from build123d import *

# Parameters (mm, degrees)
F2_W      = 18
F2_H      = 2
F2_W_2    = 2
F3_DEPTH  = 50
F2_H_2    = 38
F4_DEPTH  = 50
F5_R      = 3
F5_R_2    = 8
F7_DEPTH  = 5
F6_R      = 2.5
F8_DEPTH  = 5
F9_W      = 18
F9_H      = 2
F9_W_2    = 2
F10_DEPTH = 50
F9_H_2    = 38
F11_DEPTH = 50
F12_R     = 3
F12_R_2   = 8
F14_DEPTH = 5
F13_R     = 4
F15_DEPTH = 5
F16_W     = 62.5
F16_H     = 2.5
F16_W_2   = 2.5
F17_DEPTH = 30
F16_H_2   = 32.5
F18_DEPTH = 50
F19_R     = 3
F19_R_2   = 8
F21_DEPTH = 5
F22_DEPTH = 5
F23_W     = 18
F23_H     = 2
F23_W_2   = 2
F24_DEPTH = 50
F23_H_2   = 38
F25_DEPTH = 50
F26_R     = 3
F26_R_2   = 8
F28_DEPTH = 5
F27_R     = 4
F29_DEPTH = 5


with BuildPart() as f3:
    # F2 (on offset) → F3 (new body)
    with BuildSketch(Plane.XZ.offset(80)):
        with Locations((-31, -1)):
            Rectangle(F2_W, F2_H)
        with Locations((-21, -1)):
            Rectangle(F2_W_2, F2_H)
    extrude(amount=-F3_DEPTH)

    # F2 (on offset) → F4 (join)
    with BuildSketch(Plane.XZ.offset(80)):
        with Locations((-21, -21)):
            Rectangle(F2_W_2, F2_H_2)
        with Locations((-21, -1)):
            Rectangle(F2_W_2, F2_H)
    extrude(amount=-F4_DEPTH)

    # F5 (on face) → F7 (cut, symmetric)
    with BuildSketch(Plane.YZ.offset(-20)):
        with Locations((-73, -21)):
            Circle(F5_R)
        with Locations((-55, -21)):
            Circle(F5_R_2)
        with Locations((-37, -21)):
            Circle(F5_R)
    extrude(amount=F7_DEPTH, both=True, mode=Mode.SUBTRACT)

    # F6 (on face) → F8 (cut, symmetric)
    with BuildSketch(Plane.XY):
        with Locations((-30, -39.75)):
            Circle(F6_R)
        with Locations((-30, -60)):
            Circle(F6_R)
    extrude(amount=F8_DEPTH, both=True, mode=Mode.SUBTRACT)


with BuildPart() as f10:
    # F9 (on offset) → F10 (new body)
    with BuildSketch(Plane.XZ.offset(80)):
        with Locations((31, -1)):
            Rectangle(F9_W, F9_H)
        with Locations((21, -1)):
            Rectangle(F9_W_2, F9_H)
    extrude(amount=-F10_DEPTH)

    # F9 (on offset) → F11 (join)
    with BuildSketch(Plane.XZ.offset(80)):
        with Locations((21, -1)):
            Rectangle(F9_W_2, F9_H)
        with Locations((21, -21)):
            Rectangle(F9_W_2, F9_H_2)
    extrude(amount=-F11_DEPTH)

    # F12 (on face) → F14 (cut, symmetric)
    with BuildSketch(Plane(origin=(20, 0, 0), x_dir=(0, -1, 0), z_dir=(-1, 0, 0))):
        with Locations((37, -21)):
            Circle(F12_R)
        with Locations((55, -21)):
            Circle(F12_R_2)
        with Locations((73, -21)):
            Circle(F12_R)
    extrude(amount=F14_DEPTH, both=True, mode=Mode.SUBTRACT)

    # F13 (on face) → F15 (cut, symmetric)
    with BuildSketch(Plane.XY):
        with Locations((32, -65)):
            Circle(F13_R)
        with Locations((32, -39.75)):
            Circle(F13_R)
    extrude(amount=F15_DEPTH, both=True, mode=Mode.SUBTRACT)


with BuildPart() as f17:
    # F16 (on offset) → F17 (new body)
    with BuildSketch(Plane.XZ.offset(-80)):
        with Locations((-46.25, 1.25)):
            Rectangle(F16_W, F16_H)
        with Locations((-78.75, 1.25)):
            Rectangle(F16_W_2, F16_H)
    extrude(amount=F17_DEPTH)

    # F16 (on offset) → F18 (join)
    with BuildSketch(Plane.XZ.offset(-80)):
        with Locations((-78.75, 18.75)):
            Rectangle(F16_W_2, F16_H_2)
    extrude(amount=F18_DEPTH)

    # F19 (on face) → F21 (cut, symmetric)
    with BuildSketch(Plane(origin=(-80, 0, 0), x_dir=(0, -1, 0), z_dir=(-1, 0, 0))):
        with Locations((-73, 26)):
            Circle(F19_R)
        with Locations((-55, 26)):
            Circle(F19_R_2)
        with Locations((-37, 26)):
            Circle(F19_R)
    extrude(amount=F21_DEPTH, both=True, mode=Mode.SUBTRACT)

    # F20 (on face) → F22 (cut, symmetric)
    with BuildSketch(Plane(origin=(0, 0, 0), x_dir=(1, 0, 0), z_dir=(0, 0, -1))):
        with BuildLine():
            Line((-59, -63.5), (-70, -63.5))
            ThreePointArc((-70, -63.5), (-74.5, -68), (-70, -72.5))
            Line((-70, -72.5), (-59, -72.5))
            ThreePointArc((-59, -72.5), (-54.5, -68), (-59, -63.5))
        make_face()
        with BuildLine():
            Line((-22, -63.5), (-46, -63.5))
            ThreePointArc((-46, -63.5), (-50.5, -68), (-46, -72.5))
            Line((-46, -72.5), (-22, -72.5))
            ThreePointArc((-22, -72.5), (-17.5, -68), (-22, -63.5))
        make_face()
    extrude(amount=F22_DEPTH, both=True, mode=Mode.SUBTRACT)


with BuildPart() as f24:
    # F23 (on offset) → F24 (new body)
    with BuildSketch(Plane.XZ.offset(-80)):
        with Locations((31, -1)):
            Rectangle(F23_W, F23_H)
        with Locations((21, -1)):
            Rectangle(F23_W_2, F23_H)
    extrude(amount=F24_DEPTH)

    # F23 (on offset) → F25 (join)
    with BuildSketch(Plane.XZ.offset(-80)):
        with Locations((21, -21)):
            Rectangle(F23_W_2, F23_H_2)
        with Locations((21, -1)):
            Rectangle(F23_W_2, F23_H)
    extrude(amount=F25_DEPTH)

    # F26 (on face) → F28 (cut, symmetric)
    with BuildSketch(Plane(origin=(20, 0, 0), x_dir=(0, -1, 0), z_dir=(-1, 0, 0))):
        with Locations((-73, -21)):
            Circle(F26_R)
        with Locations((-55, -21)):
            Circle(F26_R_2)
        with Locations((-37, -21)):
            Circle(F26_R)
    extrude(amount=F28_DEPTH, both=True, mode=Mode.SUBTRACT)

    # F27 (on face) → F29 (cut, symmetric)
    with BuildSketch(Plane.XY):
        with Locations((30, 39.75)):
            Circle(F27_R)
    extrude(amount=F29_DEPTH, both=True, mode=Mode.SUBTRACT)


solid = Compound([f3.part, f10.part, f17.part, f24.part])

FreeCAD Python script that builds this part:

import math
import FreeCAD as App
import Part
import Sketcher
from FreeCAD import Vector

doc = App.newDocument("Part")
body = doc.addObject("PartDesign::Body", "Body")

# Sketch on XZ plane
sketch1 = doc.addObject("Sketcher::SketchObject", "Sketch")
body.addObject(sketch1)
sketch1.AttachmentSupport = (doc.XZ_Plane, [""])
sketch1.MapMode = "FlatFace"
sketch1.AttachmentOffset = App.Placement(Vector(0, 0, 80), App.Rotation())
sketch1.addGeometry([
    Part.LineSegment(Vector(-40, 0, 0), Vector(-40, -2, 0)),
    Part.LineSegment(Vector(-40, -2, 0), Vector(-20, -2, 0)),
    Part.LineSegment(Vector(-20, -2, 0), Vector(-20, 0, 0)),
    Part.LineSegment(Vector(-20, 0, 0), Vector(-40, 0, 0)),
], False)
sketch1.addConstraint([
    Sketcher.Constraint("Coincident", 0, 2, 1, 1),
    Sketcher.Constraint("Coincident", 1, 2, 2, 1),
    Sketcher.Constraint("Coincident", 2, 2, 3, 1),
    Sketcher.Constraint("Coincident", 3, 2, 0, 1),
    Sketcher.Constraint("Vertical", 0),
    Sketcher.Constraint("Horizontal", 1),
    Sketcher.Constraint("Vertical", 2),
    Sketcher.Constraint("Horizontal", 3),
    Sketcher.Constraint("PointOnObject", 2, 2, -1),
    Sketcher.Constraint("DistanceX", 1, 1, 1, 2, 20.0),
    Sketcher.Constraint("DistanceY", 0, 2, 0, 1, 2.0),
    Sketcher.Constraint("DistanceX", 0, 2, -1, 1, 40.0),
])
pad1 = doc.addObject("PartDesign::Pad", "Pad")
body.addObject(pad1)
pad1.Profile = sketch1
pad1.Length = 50
pad1.Reversed = True

# Sketch on XZ plane
sketch2 = doc.addObject("Sketcher::SketchObject", "Sketch001")
body.addObject(sketch2)
sketch2.AttachmentSupport = (doc.XZ_Plane, [""])
sketch2.MapMode = "FlatFace"
sketch2.AttachmentOffset = App.Placement(Vector(0, 0, 80), App.Rotation())
sketch2.addGeometry([
    Part.LineSegment(Vector(-22, -40, 0), Vector(-20, -40, 0)),
    Part.LineSegment(Vector(-20, -40, 0), Vector(-20, 0, 0)),
    Part.LineSegment(Vector(-20, 0, 0), Vector(-22, 0, 0)),
    Part.LineSegment(Vector(-22, 0, 0), Vector(-22, -40, 0)),
], False)
sketch2.addConstraint([
    Sketcher.Constraint("Coincident", 0, 2, 1, 1),
    Sketcher.Constraint("Coincident", 1, 2, 2, 1),
    Sketcher.Constraint("Coincident", 2, 2, 3, 1),
    Sketcher.Constraint("Coincident", 3, 2, 0, 1),
    Sketcher.Constraint("Horizontal", 0),
    Sketcher.Constraint("Vertical", 1),
    Sketcher.Constraint("Horizontal", 2),
    Sketcher.Constraint("Vertical", 3),
    Sketcher.Constraint("PointOnObject", 1, 2, -1),
    Sketcher.Constraint("DistanceX", 0, 1, 0, 2, 2.0),
    Sketcher.Constraint("DistanceY", 1, 1, 1, 2, 40.0),
    Sketcher.Constraint("DistanceX", 0, 2, -1, 1, 20.0),
])
pad2 = doc.addObject("PartDesign::Pad", "Pad001")
body.addObject(pad2)
pad2.Profile = sketch2
pad2.Length = 50
pad2.Reversed = True

# Sketch on YZ plane
sketch3 = doc.addObject("Sketcher::SketchObject", "Sketch002")
body.addObject(sketch3)
sketch3.AttachmentSupport = (doc.YZ_Plane, [""])
sketch3.MapMode = "FlatFace"
sketch3.AttachmentOffset = App.Placement(Vector(0, 0, -20), App.Rotation())
sketch3.addGeometry([
    Part.Circle(Vector(-73, -21, 0), Vector(0, 0, 1), 3),
    Part.Circle(Vector(-55, -21, 0), Vector(0, 0, 1), 8),
    Part.Circle(Vector(-37, -21, 0), Vector(0, 0, 1), 3),
], False)
sketch3.addConstraint([
    Sketcher.Constraint("Equal", 0, 2),
    Sketcher.Constraint("Horizontal", 0, 3, 1, 3),
    Sketcher.Constraint("Horizontal", 1, 3, 2, 3),
    Sketcher.Constraint("Diameter", 0, 6.0),
    Sketcher.Constraint("Diameter", 1, 16.0),
    Sketcher.Constraint("DistanceX", 0, 3, -1, 1, 73.0),
    Sketcher.Constraint("DistanceY", 0, 3, -1, 1, 21.0),
    Sketcher.Constraint("DistanceX", 1, 3, -1, 1, 55.0),
    Sketcher.Constraint("DistanceX", 2, 3, -1, 1, 37.0),
])
pocket1 = doc.addObject("PartDesign::Pocket", "Pocket")
body.addObject(pocket1)
pocket1.Profile = sketch3
pocket1.Length = 10
pocket1.Midplane = True

# Sketch on XY plane
sketch4 = doc.addObject("Sketcher::SketchObject", "Sketch003")
body.addObject(sketch4)
sketch4.AttachmentSupport = (doc.XY_Plane, [""])
sketch4.MapMode = "FlatFace"
sketch4.addGeometry([
    Part.Circle(Vector(-30, -39.8, 0), Vector(0, 0, 1), 2.5),
    Part.Circle(Vector(-30, -60, 0), Vector(0, 0, 1), 2.5),
], False)
sketch4.addConstraint([
    Sketcher.Constraint("Equal", 0, 1),
    Sketcher.Constraint("Vertical", 0, 3, 1, 3),
    Sketcher.Constraint("Diameter", 0, 5.0),
    Sketcher.Constraint("DistanceX", 0, 3, -1, 1, 30.0),
    Sketcher.Constraint("DistanceY", 1, 3, -1, 1, 60.0),
    Sketcher.Constraint("DistanceY", 0, 3, -1, 1, 39.75),
])
pocket2 = doc.addObject("PartDesign::Pocket", "Pocket001")
body.addObject(pocket2)
pocket2.Profile = sketch4
pocket2.Length = 10
pocket2.Midplane = True
body2 = doc.addObject("PartDesign::Body", "Body001")

# Sketch on XZ plane
sketch5 = doc.addObject("Sketcher::SketchObject", "Sketch004")
body2.addObject(sketch5)
sketch5.AttachmentSupport = (doc.getObject("XZ_Plane001"), [""])
sketch5.MapMode = "FlatFace"
sketch5.AttachmentOffset = App.Placement(Vector(0, 0, 80), App.Rotation())
sketch5.addGeometry([
    Part.LineSegment(Vector(40, -2, 0), Vector(40, 0, 0)),
    Part.LineSegment(Vector(40, 0, 0), Vector(20, 0, 0)),
    Part.LineSegment(Vector(20, 0, 0), Vector(20, -2, 0)),
    Part.LineSegment(Vector(20, -2, 0), Vector(40, -2, 0)),
], False)
sketch5.addConstraint([
    Sketcher.Constraint("Coincident", 0, 2, 1, 1),
    Sketcher.Constraint("Coincident", 1, 2, 2, 1),
    Sketcher.Constraint("Coincident", 2, 2, 3, 1),
    Sketcher.Constraint("Coincident", 3, 2, 0, 1),
    Sketcher.Constraint("Vertical", 0),
    Sketcher.Constraint("Horizontal", 1),
    Sketcher.Constraint("Vertical", 2),
    Sketcher.Constraint("Horizontal", 3),
    Sketcher.Constraint("PointOnObject", 0, 2, -1),
    Sketcher.Constraint("DistanceX", 1, 2, 1, 1, 20.0),
    Sketcher.Constraint("DistanceY", 0, 1, 0, 2, 2.0),
    Sketcher.Constraint("DistanceX", -1, 1, 0, 2, 40.0),
])
pad3 = doc.addObject("PartDesign::Pad", "Pad002")
body2.addObject(pad3)
pad3.Profile = sketch5
pad3.Length = 50
pad3.Reversed = True

# Sketch on XZ plane
sketch6 = doc.addObject("Sketcher::SketchObject", "Sketch005")
body2.addObject(sketch6)
sketch6.AttachmentSupport = (doc.getObject("XZ_Plane001"), [""])
sketch6.MapMode = "FlatFace"
sketch6.AttachmentOffset = App.Placement(Vector(0, 0, 80), App.Rotation())
sketch6.addGeometry([
    Part.LineSegment(Vector(20, 0, 0), Vector(20, -40, 0)),
    Part.LineSegment(Vector(20, -40, 0), Vector(22, -40, 0)),
    Part.LineSegment(Vector(22, -40, 0), Vector(22, 0, 0)),
    Part.LineSegment(Vector(22, 0, 0), Vector(20, 0, 0)),
], False)
sketch6.addConstraint([
    Sketcher.Constraint("Coincident", 0, 2, 1, 1),
    Sketcher.Constraint("Coincident", 1, 2, 2, 1),
    Sketcher.Constraint("Coincident", 2, 2, 3, 1),
    Sketcher.Constraint("Coincident", 3, 2, 0, 1),
    Sketcher.Constraint("Vertical", 0),
    Sketcher.Constraint("Horizontal", 1),
    Sketcher.Constraint("Vertical", 2),
    Sketcher.Constraint("Horizontal", 3),
    Sketcher.Constraint("PointOnObject", 2, 2, -1),
    Sketcher.Constraint("DistanceX", 1, 1, 1, 2, 2.0),
    Sketcher.Constraint("DistanceY", 0, 2, 0, 1, 40.0),
    Sketcher.Constraint("DistanceX", -1, 1, 0, 2, 20.0),
])
pad4 = doc.addObject("PartDesign::Pad", "Pad003")
body2.addObject(pad4)
pad4.Profile = sketch6
pad4.Length = 50
pad4.Reversed = True

# Sketch on YZ plane
sketch7 = doc.addObject("Sketcher::SketchObject", "Sketch006")
body2.addObject(sketch7)
sketch7.AttachmentSupport = (doc.getObject("YZ_Plane001"), [""])
sketch7.MapMode = "FlatFace"
sketch7.AttachmentOffset = App.Placement(Vector(0, 0, 20), App.Rotation())
sketch7.addGeometry([
    Part.Circle(Vector(-37, -21, 0), Vector(0, 0, 1), 3),
    Part.Circle(Vector(-55, -21, 0), Vector(0, 0, 1), 8),
    Part.Circle(Vector(-73, -21, 0), Vector(0, 0, 1), 3),
], False)
sketch7.addConstraint([
    Sketcher.Constraint("Equal", 0, 2),
    Sketcher.Constraint("Horizontal", 0, 3, 1, 3),
    Sketcher.Constraint("Horizontal", 1, 3, 2, 3),
    Sketcher.Constraint("Diameter", 0, 6.0),
    Sketcher.Constraint("Diameter", 1, 16.0),
    Sketcher.Constraint("DistanceX", 0, 3, -1, 1, 37.0),
    Sketcher.Constraint("DistanceY", 0, 3, -1, 1, 21.0),
    Sketcher.Constraint("DistanceX", 1, 3, -1, 1, 55.0),
    Sketcher.Constraint("DistanceX", 2, 3, -1, 1, 73.0),
])
pocket3 = doc.addObject("PartDesign::Pocket", "Pocket002")
body2.addObject(pocket3)
pocket3.Profile = sketch7
pocket3.Length = 10
pocket3.Midplane = True

# Sketch on XY plane
sketch8 = doc.addObject("Sketcher::SketchObject", "Sketch007")
body2.addObject(sketch8)
sketch8.AttachmentSupport = (doc.getObject("XY_Plane001"), [""])
sketch8.MapMode = "FlatFace"
sketch8.addGeometry([
    Part.Circle(Vector(32, -65, 0), Vector(0, 0, 1), 4),
    Part.Circle(Vector(32, -39.8, 0), Vector(0, 0, 1), 4),
], False)
sketch8.addConstraint([
    Sketcher.Constraint("Equal", 0, 1),
    Sketcher.Constraint("Vertical", 0, 3, 1, 3),
    Sketcher.Constraint("Diameter", 0, 8.0),
    Sketcher.Constraint("DistanceX", -1, 1, 0, 3, 32.0),
    Sketcher.Constraint("DistanceY", 0, 3, -1, 1, 65.0),
    Sketcher.Constraint("DistanceY", 1, 3, -1, 1, 39.75),
])
pocket4 = doc.addObject("PartDesign::Pocket", "Pocket003")
body2.addObject(pocket4)
pocket4.Profile = sketch8
pocket4.Length = 10
pocket4.Midplane = True
body3 = doc.addObject("PartDesign::Body", "Body002")

# Sketch on XZ plane
sketch9 = doc.addObject("Sketcher::SketchObject", "Sketch008")
body3.addObject(sketch9)
sketch9.AttachmentSupport = (doc.getObject("XZ_Plane002"), [""])
sketch9.MapMode = "FlatFace"
sketch9.AttachmentOffset = App.Placement(Vector(0, 0, -80), App.Rotation())
sketch9.addGeometry([
    Part.LineSegment(Vector(-15, 0, 0), Vector(-15, 2.5, 0)),
    Part.LineSegment(Vector(-15, 2.5, 0), Vector(-80, 2.5, 0)),
    Part.LineSegment(Vector(-80, 2.5, 0), Vector(-80, 0, 0)),
    Part.LineSegment(Vector(-80, 0, 0), Vector(-15, 0, 0)),
], False)
sketch9.addConstraint([
    Sketcher.Constraint("Coincident", 0, 2, 1, 1),
    Sketcher.Constraint("Coincident", 1, 2, 2, 1),
    Sketcher.Constraint("Coincident", 2, 2, 3, 1),
    Sketcher.Constraint("Coincident", 3, 2, 0, 1),
    Sketcher.Constraint("Vertical", 0),
    Sketcher.Constraint("Horizontal", 1),
    Sketcher.Constraint("Vertical", 2),
    Sketcher.Constraint("Horizontal", 3),
    Sketcher.Constraint("PointOnObject", 2, 2, -1),
    Sketcher.Constraint("DistanceX", 1, 2, 1, 1, 65.0),
    Sketcher.Constraint("DistanceY", 0, 1, 0, 2, 2.5),
    Sketcher.Constraint("DistanceX", 0, 2, -1, 1, 15.0),
])
pad5 = doc.addObject("PartDesign::Pad", "Pad004")
body3.addObject(pad5)
pad5.Profile = sketch9
pad5.Length = 30

# Sketch on XZ plane
sketch10 = doc.addObject("Sketcher::SketchObject", "Sketch009")
body3.addObject(sketch10)
sketch10.AttachmentSupport = (doc.getObject("XZ_Plane002"), [""])
sketch10.MapMode = "FlatFace"
sketch10.AttachmentOffset = App.Placement(Vector(0, 0, -80), App.Rotation())
sketch10.addGeometry([
    Part.LineSegment(Vector(-80, 35, 0), Vector(-80, 2.5, 0)),
    Part.LineSegment(Vector(-80, 2.5, 0), Vector(-77.5, 2.5, 0)),
    Part.LineSegment(Vector(-77.5, 2.5, 0), Vector(-77.5, 35, 0)),
    Part.LineSegment(Vector(-77.5, 35, 0), Vector(-80, 35, 0)),
], False)
sketch10.addConstraint([
    Sketcher.Constraint("Coincident", 0, 2, 1, 1),
    Sketcher.Constraint("Coincident", 1, 2, 2, 1),
    Sketcher.Constraint("Coincident", 2, 2, 3, 1),
    Sketcher.Constraint("Coincident", 3, 2, 0, 1),
    Sketcher.Constraint("Vertical", 0),
    Sketcher.Constraint("Horizontal", 1),
    Sketcher.Constraint("Vertical", 2),
    Sketcher.Constraint("Horizontal", 3),
    Sketcher.Constraint("DistanceX", 1, 1, 1, 2, 2.5),
    Sketcher.Constraint("DistanceY", 0, 2, 0, 1, 32.5),
    Sketcher.Constraint("DistanceX", 0, 2, -1, 1, 80.0),
    Sketcher.Constraint("DistanceY", -1, 1, 2, 2, 35.0),
])
pad6 = doc.addObject("PartDesign::Pad", "Pad005")
body3.addObject(pad6)
pad6.Profile = sketch10
pad6.Length = 50

# Sketch on YZ plane
sketch11 = doc.addObject("Sketcher::SketchObject", "Sketch010")
body3.addObject(sketch11)
sketch11.AttachmentSupport = (doc.getObject("YZ_Plane002"), [""])
sketch11.MapMode = "FlatFace"
sketch11.AttachmentOffset = App.Placement(Vector(0, 0, -80), App.Rotation())
sketch11.addGeometry([
    Part.Circle(Vector(73, 26, 0), Vector(0, 0, 1), 3),
    Part.Circle(Vector(55, 26, 0), Vector(0, 0, 1), 8),
    Part.Circle(Vector(37, 26, 0), Vector(0, 0, 1), 3),
], False)
sketch11.addConstraint([
    Sketcher.Constraint("Equal", 0, 2),
    Sketcher.Constraint("Horizontal", 0, 3, 1, 3),
    Sketcher.Constraint("Horizontal", 1, 3, 2, 3),
    Sketcher.Constraint("Diameter", 0, 6.0),
    Sketcher.Constraint("Diameter", 1, 16.0),
    Sketcher.Constraint("DistanceX", -1, 1, 0, 3, 73.0),
    Sketcher.Constraint("DistanceY", -1, 1, 0, 3, 26.0),
    Sketcher.Constraint("DistanceX", -1, 1, 1, 3, 55.0),
    Sketcher.Constraint("DistanceX", -1, 1, 2, 3, 37.0),
])
pocket5 = doc.addObject("PartDesign::Pocket", "Pocket004")
body3.addObject(pocket5)
pocket5.Profile = sketch11
pocket5.Length = 10
pocket5.Midplane = True

# Sketch on XY plane
sketch12 = doc.addObject("Sketcher::SketchObject", "Sketch011")
body3.addObject(sketch12)
sketch12.AttachmentSupport = (doc.getObject("XY_Plane002"), [""])
sketch12.MapMode = "FlatFace"
sketch12.addGeometry([
    Part.LineSegment(Vector(-59, 63.5, 0), Vector(-70, 63.5, 0)),  # 0
    Part.ArcOfCircle(Part.Circle(Vector(-70, 68, 0), Vector(0, 0, 1), 4.5), math.radians(90), math.radians(270)),  # 1
    Part.LineSegment(Vector(-70, 72.5, 0), Vector(-59, 72.5, 0)),  # 2
    Part.ArcOfCircle(Part.Circle(Vector(-59, 68, 0), Vector(0, 0, 1), 4.5), math.radians(-90), math.radians(90)),  # 3
    Part.LineSegment(Vector(-22, 63.5, 0), Vector(-46, 63.5, 0)),  # 4
    Part.ArcOfCircle(Part.Circle(Vector(-46, 68, 0), Vector(0, 0, 1), 4.5), math.radians(90), math.radians(270)),  # 5
    Part.LineSegment(Vector(-46, 72.5, 0), Vector(-22, 72.5, 0)),  # 6
    Part.ArcOfCircle(Part.Circle(Vector(-22, 68, 0), Vector(0, 0, 1), 4.5), math.radians(-90), math.radians(90)),  # 7
], False)
sketch12.addConstraint([
    Sketcher.Constraint("Tangent", 0, 2, 1, 2),
    Sketcher.Constraint("Tangent", 1, 1, 2, 1),
    Sketcher.Constraint("Tangent", 2, 2, 3, 2),
    Sketcher.Constraint("Tangent", 3, 1, 0, 1),
    Sketcher.Constraint("Tangent", 4, 2, 5, 2),
    Sketcher.Constraint("Tangent", 5, 1, 6, 1),
    Sketcher.Constraint("Tangent", 6, 2, 7, 2),
    Sketcher.Constraint("Tangent", 7, 1, 4, 1),
    Sketcher.Constraint("Horizontal", 0),
    Sketcher.Constraint("Horizontal", 2),
    Sketcher.Constraint("Horizontal", 4),
    Sketcher.Constraint("Horizontal", 6),
    Sketcher.Constraint("Equal", 3, 5),
    Sketcher.Constraint("Horizontal", 3, 3, 5, 3),
    Sketcher.Constraint("Radius", 1, 4.5),
    Sketcher.Constraint("DistanceX", 0, 2, 0, 1, 11.0),
    Sketcher.Constraint("DistanceX", 4, 2, 4, 1, 24.0),
    Sketcher.Constraint("DistanceX", 1, 3, -1, 1, 70.0),
    Sketcher.Constraint("DistanceY", -1, 1, 1, 3, 68.0),
    Sketcher.Constraint("DistanceX", 5, 3, -1, 1, 46.0),
])
pocket6 = doc.addObject("PartDesign::Pocket", "Pocket005")
body3.addObject(pocket6)
pocket6.Profile = sketch12
pocket6.Length = 10
pocket6.Midplane = True
body4 = doc.addObject("PartDesign::Body", "Body003")

# Sketch on XZ plane
sketch13 = doc.addObject("Sketcher::SketchObject", "Sketch012")
body4.addObject(sketch13)
sketch13.AttachmentSupport = (doc.getObject("XZ_Plane003"), [""])
sketch13.MapMode = "FlatFace"
sketch13.AttachmentOffset = App.Placement(Vector(0, 0, -80), App.Rotation())
sketch13.addGeometry([
    Part.LineSegment(Vector(40, -2, 0), Vector(40, 0, 0)),
    Part.LineSegment(Vector(40, 0, 0), Vector(20, 0, 0)),
    Part.LineSegment(Vector(20, 0, 0), Vector(20, -2, 0)),
    Part.LineSegment(Vector(20, -2, 0), Vector(40, -2, 0)),
], False)
sketch13.addConstraint([
    Sketcher.Constraint("Coincident", 0, 2, 1, 1),
    Sketcher.Constraint("Coincident", 1, 2, 2, 1),
    Sketcher.Constraint("Coincident", 2, 2, 3, 1),
    Sketcher.Constraint("Coincident", 3, 2, 0, 1),
    Sketcher.Constraint("Vertical", 0),
    Sketcher.Constraint("Horizontal", 1),
    Sketcher.Constraint("Vertical", 2),
    Sketcher.Constraint("Horizontal", 3),
    Sketcher.Constraint("PointOnObject", 0, 2, -1),
    Sketcher.Constraint("DistanceX", 1, 2, 1, 1, 20.0),
    Sketcher.Constraint("DistanceY", 0, 1, 0, 2, 2.0),
    Sketcher.Constraint("DistanceX", -1, 1, 0, 2, 40.0),
])
pad7 = doc.addObject("PartDesign::Pad", "Pad006")
body4.addObject(pad7)
pad7.Profile = sketch13
pad7.Length = 50

# Sketch on XZ plane
sketch14 = doc.addObject("Sketcher::SketchObject", "Sketch013")
body4.addObject(sketch14)
sketch14.AttachmentSupport = (doc.getObject("XZ_Plane003"), [""])
sketch14.MapMode = "FlatFace"
sketch14.AttachmentOffset = App.Placement(Vector(0, 0, -80), App.Rotation())
sketch14.addGeometry([
    Part.LineSegment(Vector(20, -40, 0), Vector(22, -40, 0)),
    Part.LineSegment(Vector(22, -40, 0), Vector(22, 0, 0)),
    Part.LineSegment(Vector(22, 0, 0), Vector(20, 0, 0)),
    Part.LineSegment(Vector(20, 0, 0), Vector(20, -40, 0)),
], False)
sketch14.addConstraint([
    Sketcher.Constraint("Coincident", 0, 2, 1, 1),
    Sketcher.Constraint("Coincident", 1, 2, 2, 1),
    Sketcher.Constraint("Coincident", 2, 2, 3, 1),
    Sketcher.Constraint("Coincident", 3, 2, 0, 1),
    Sketcher.Constraint("Horizontal", 0),
    Sketcher.Constraint("Vertical", 1),
    Sketcher.Constraint("Horizontal", 2),
    Sketcher.Constraint("Vertical", 3),
    Sketcher.Constraint("PointOnObject", 1, 2, -1),
    Sketcher.Constraint("DistanceX", 0, 1, 0, 2, 2.0),
    Sketcher.Constraint("DistanceY", 1, 1, 1, 2, 40.0),
    Sketcher.Constraint("DistanceX", -1, 1, 0, 2, 22.0),
])
pad8 = doc.addObject("PartDesign::Pad", "Pad007")
body4.addObject(pad8)
pad8.Profile = sketch14
pad8.Length = 50

# Sketch on YZ plane
sketch15 = doc.addObject("Sketcher::SketchObject", "Sketch014")
body4.addObject(sketch15)
sketch15.AttachmentSupport = (doc.getObject("YZ_Plane003"), [""])
sketch15.MapMode = "FlatFace"
sketch15.AttachmentOffset = App.Placement(Vector(0, 0, 20), App.Rotation())
sketch15.addGeometry([
    Part.Circle(Vector(73, -21, 0), Vector(0, 0, 1), 3),
    Part.Circle(Vector(55, -21, 0), Vector(0, 0, 1), 8),
    Part.Circle(Vector(37, -21, 0), Vector(0, 0, 1), 3),
], False)
sketch15.addConstraint([
    Sketcher.Constraint("Equal", 0, 2),
    Sketcher.Constraint("Horizontal", 0, 3, 1, 3),
    Sketcher.Constraint("Horizontal", 1, 3, 2, 3),
    Sketcher.Constraint("Diameter", 0, 6.0),
    Sketcher.Constraint("Diameter", 1, 16.0),
    Sketcher.Constraint("DistanceX", -1, 1, 0, 3, 73.0),
    Sketcher.Constraint("DistanceY", 0, 3, -1, 1, 21.0),
    Sketcher.Constraint("DistanceX", -1, 1, 1, 3, 55.0),
    Sketcher.Constraint("DistanceX", -1, 1, 2, 3, 37.0),
])
pocket7 = doc.addObject("PartDesign::Pocket", "Pocket006")
body4.addObject(pocket7)
pocket7.Profile = sketch15
pocket7.Length = 10
pocket7.Midplane = True

# Sketch on XY plane
sketch16 = doc.addObject("Sketcher::SketchObject", "Sketch015")
body4.addObject(sketch16)
sketch16.AttachmentSupport = (doc.getObject("XY_Plane003"), [""])
sketch16.MapMode = "FlatFace"
sketch16.addGeometry(Part.Circle(Vector(30, 39.8, 0), Vector(0, 0, 1), 4), False)
sketch16.addConstraint([
    Sketcher.Constraint("Diameter", 0, 8.0),
    Sketcher.Constraint("DistanceX", -1, 1, 0, 3, 30.0),
    Sketcher.Constraint("DistanceY", -1, 1, 0, 3, 39.75),
])
pocket8 = doc.addObject("PartDesign::Pocket", "Pocket007")
body4.addObject(pocket8)
pocket8.Profile = sketch16
pocket8.Length = 10
pocket8.Midplane = True

doc.recompute()
